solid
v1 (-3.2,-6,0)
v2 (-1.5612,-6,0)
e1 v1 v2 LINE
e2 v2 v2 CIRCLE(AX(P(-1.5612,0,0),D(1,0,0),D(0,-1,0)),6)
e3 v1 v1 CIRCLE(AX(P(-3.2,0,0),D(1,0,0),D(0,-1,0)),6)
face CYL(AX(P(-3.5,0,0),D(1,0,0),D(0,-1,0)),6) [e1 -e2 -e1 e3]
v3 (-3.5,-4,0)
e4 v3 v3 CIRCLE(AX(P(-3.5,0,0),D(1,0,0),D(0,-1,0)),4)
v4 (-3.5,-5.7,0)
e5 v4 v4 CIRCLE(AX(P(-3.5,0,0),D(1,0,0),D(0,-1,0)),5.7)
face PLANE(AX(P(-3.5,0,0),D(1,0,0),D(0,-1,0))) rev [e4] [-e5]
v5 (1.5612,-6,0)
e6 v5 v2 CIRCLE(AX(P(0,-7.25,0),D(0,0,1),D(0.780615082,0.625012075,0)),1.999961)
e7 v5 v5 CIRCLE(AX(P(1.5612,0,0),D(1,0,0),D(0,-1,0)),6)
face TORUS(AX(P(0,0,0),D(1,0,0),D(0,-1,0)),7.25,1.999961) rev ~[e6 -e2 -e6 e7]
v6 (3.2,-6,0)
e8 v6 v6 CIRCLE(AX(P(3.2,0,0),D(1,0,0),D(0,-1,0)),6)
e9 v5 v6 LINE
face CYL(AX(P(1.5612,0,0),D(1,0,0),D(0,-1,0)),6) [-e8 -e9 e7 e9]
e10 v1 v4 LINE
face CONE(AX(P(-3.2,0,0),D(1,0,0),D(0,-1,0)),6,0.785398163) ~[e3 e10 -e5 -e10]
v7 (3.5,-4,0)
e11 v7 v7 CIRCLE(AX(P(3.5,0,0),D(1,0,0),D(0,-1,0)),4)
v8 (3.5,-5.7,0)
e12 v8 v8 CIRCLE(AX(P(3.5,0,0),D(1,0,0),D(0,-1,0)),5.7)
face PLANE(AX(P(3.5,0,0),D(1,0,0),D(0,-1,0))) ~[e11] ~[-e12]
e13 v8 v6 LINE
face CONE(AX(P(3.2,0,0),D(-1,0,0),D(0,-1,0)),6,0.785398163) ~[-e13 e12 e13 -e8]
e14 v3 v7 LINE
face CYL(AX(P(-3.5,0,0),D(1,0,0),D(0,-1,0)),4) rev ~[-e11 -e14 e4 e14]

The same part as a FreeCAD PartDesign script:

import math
import FreeCAD as App
import Part
import Sketcher
from FreeCAD import Vector


def edges_at(feature, points):
    """Names of the edges that pass closest to the given points."""
    edges = feature.Shape.Edges
    near = lambda p: min(range(len(edges)), key=lambda i: edges[i].distToShape(Part.Vertex(*p))[0])
    return sorted({f"Edge{near(p) + 1}" for p in points})

doc = App.newDocument("Part")
params = doc.addObject("Spreadsheet::Sheet", "Params")
for row, (alias, value) in enumerate([
    ("sketch1_radius", "2 mm"),
    ("sketch1_width", "7 mm"),
    ("sketch1_height", "2 mm"),
    ("revolution_angle", "360 deg"),
    ("chamfer_size", "0.3 mm"),
], start=1):
    params.set(f"A{row}", alias)
    params.set(f"B{row}", "=" + value)
    params.setAlias(f"B{row}", alias)

body = doc.addObject("PartDesign::Body", "Body")

# Sketch on XY plane
sketch1 = body.newObject("Sketcher::SketchObject", "Sketch")
sketch1.AttachmentSupport = (doc.getObject("XY_Plane"), [""])
sketch1.MapMode = "FlatFace"
sketch1.addGeometry(Part.LineSegment(Vector(3.5, -4, 0), Vector(-3.5, -4, 0)), False)
sketch1.addGeometry(Part.LineSegment(Vector(-3.5, -4, 0), Vector(-3.5, -6, 0)), False)
sketch1.addGeometry(Part.LineSegment(Vector(-3.5, -6, 0), Vector(-1.5612, -6, 0)), False)
sketch1.addGeometry(Part.ArcOfCircle(Part.Circle(Vector(0, -7.25, 0), Vector(0, 0, 1), 1.999961), math.radians(38.683074), math.radians(141.316926)), False)
sketch1.addGeometry(Part.LineSegment(Vector(1.5612, -6, 0), Vector(3.5, -6, 0)), False)
sketch1.addGeometry(Part.LineSegment(Vector(3.5, -6, 0), Vector(3.5, -4, 0)), False)
sketch1.addConstraint(Sketcher.Constraint("Coincident", 0, 2, 1, 1))
sketch1.addConstraint(Sketcher.Constraint("Coincident", 1, 2, 2, 1))
sketch1.addConstraint(Sketcher.Constraint("Coincident", 2, 2, 3, 2))
sketch1.addConstraint(Sketcher.Constraint("Coincident", 3, 1, 4, 1))
sketch1.addConstraint(Sketcher.Constraint("Coincident", 4, 2, 5, 1))
sketch1.addConstraint(Sketcher.Constraint("Coincident", 5, 2, 0, 1))
sketch1.addConstraint(Sketcher.Constraint("Horizontal", 0))
sketch1.addConstraint(Sketcher.Constraint("Vertical", 1))
sketch1.addConstraint(Sketcher.Constraint("Horizontal", 2))
sketch1.addConstraint(Sketcher.Constraint("Horizontal", 4))
sketch1.addConstraint(Sketcher.Constraint("Vertical", 5))
sketch1.addConstraint(Sketcher.Constraint("Symmetric", 2, 2, 3, 1, -2))
sketch1.addConstraint(Sketcher.Constraint("Equal", 2, 4))
sketch1.addConstraint(Sketcher.Constraint("Radius", 3, 2.0))
sketch1.addConstraint(Sketcher.Constraint("DistanceX", 0, 2, 0, 1, 7.0))
sketch1.addConstraint(Sketcher.Constraint("DistanceY", 1, 2, 1, 1, 2.0))
sketch1.addConstraint(Sketcher.Constraint("DistanceY", 0, 2, -1, 1, 4.0))
sketch1.addConstraint(Sketcher.Constraint("DistanceY", 3, 3, 1, 2, 1.25))
sketch1.setExpression("Constraints[13]", "Params.sketch1_radius")
sketch1.setExpression("Constraints[14]", "Params.sketch1_width")
sketch1.setExpression("Constraints[15]", "Params.sketch1_height")
revolution = body.newObject("PartDesign::Revolution", "Revolution")
revolution.Profile = sketch1
revolution.ReferenceAxis = (sketch1, ["H_Axis"])
revolution.setExpression("Angle", "Params.revolution_angle")
doc.recompute()

chamfer = body.newObject("PartDesign::Chamfer", "Chamfer")
chamfer.Base = (revolution, edges_at(revolution, [(-3.5, 6, 0), (3.5, 6, 0)]))
chamfer.setExpression("Size", "Params.chamfer_size")

doc.recompute()
